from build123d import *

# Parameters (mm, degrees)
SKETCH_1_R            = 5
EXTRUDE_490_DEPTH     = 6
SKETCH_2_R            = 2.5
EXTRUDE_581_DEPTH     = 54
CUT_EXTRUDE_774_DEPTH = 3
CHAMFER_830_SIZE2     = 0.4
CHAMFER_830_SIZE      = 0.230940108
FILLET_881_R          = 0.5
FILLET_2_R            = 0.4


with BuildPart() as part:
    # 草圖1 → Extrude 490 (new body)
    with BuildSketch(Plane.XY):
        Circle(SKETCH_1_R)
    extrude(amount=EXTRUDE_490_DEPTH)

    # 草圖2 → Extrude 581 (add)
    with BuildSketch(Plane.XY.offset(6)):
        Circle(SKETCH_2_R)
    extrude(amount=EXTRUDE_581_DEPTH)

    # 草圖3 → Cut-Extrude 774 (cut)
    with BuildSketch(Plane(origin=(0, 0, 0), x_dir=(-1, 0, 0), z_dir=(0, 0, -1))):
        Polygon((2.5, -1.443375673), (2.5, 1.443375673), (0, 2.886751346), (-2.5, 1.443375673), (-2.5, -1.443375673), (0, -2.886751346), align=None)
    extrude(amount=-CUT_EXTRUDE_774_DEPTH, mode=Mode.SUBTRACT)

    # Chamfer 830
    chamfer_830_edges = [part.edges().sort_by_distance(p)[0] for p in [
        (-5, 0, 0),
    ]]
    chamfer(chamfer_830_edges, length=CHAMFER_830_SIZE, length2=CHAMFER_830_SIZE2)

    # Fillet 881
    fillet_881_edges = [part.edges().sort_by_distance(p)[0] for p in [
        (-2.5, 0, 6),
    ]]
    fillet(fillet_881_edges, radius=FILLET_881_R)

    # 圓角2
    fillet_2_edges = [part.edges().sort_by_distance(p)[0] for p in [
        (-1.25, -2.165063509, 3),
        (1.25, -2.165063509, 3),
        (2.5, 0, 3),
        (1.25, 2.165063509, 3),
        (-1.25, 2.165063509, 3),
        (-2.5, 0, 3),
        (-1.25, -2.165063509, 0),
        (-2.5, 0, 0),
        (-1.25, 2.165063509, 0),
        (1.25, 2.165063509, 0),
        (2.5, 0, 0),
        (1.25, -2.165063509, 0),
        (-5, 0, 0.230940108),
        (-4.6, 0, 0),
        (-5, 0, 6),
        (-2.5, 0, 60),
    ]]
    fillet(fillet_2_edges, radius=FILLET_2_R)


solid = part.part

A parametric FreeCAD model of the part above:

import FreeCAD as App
import Part
import Sketcher
Q = App.Units.Quantity


def edges_at(feature, points):
    """Names of the edges that pass closest to the given points."""
    edges = feature.Shape.Edges
    near = lambda p: min(range(len(edges)), key=lambda i: edges[i].distToShape(Part.Vertex(*p))[0])
    return sorted({f"Edge{near(p) + 1}" for p in points})


def add_polygon(sketch, points):
    """Adds a closed chain of lines whose ends are joined by coincident constraints."""
    first, n = sketch.GeometryCount, len(points)
    for a, b in zip(points, points[1:] + points[:1]):
        sketch.addGeometry(Part.LineSegment(App.Vector(*a, 0), App.Vector(*b, 0)), False)
    for i in range(n):
        sketch.addConstraint(Sketcher.Constraint("Coincident", first + i, 2, first + (i + 1) % n, 1))

doc = App.newDocument("Part")
body = doc.addObject("PartDesign::Body", "Body")

# Sketch on XY plane
sketch1 = doc.addObject("Sketcher::SketchObject", "Sketch")
body.addObject(sketch1)
sketch1.AttachmentSupport = (doc.XY_Plane, [""])
sketch1.MapMode = "FlatFace"
sketch1.addGeometry(Part.Circle(App.Vector(0, 0, 0), App.Vector(0, 0, 1), 5), False)
sketch1.addConstraint([
    Sketcher.Constraint("Coincident", 0, 3, -1, 1),
    Sketcher.Constraint("Diameter", 0, 10.0),
])
pad1 = doc.addObject("PartDesign::Pad", "Pad")
body.addObject(pad1)
pad1.Profile = sketch1
pad1.Length = 6

# Sketch on XY plane
sketch2 = doc.addObject("Sketcher::SketchObject", "Sketch001")
body.addObject(sketch2)
sketch2.AttachmentSupport = (doc.XY_Plane, [""])
sketch2.MapMode = "FlatFace"
sketch2.AttachmentOffset = App.Placement(App.Vector(0, 0, 6), App.Rotation())
sketch2.addGeometry(Part.Circle(App.Vector(0, 0, 0), App.Vector(0, 0, 1), 2.5), False)
sketch2.addConstraint([
    Sketcher.Constraint("Coincident", 0, 3, -1, 1),
    Sketcher.Constraint("Diameter", 0, 5.0),
])
pad2 = doc.addObject("PartDesign::Pad", "Pad001")
body.addObject(pad2)
pad2.Profile = sketch2
pad2.Length = 54

# Sketch on XY plane
sketch3 = doc.addObject("Sketcher::SketchObject", "Sketch002")
body.addObject(sketch3)
sketch3.AttachmentSupport = (doc.XY_Plane, [""])
sketch3.MapMode = "FlatFace"
add_polygon(sketch3, [(-2.5, -1.4), (-2.5, 1.4), (0, 2.9), (2.5, 1.4), (2.5, -1.4), (0, -2.9)])  # lines 0-5
sketch3.addConstraint([
    Sketcher.Constraint("Vertical", 0),
    Sketcher.Constraint("Vertical", 3),
    Sketcher.Constraint("Symmetric", 0, 2, 3, 2, -1, 1),
    Sketcher.Constraint("Symmetric", 1, 2, 4, 2, -1, 1),
    Sketcher.Constraint("PointOnObject", 1, 2, -2),
    Sketcher.Constraint("Parallel", 2, 5),
    Sketcher.Constraint("Horizontal", 0, 2, 2, 2),
    Sketcher.Constraint("Angle", 1, Q("30 deg")),
    Sketcher.Constraint("DistanceX", 0, 2, 2, 2, 5.0),
    Sketcher.Constraint("DistanceY", 0, 1, 0, 2, 2.886751),
])
pocket1 = doc.addObject("PartDesign::Pocket", "Pocket")
body.addObject(pocket1)
pocket1.Profile = sketch3
pocket1.Length = 3
pocket1.Reversed = True
doc.recompute()

chamfer = doc.addObject("PartDesign::Chamfer", "Chamfer")
body.addObject(chamfer)
chamfer.Base = (pocket1, edges_at(pocket1, [(-5, 0, 0)]))
chamfer.ChamferType = "Two distances"
chamfer.Size = 0.23094
chamfer.Size2 = 0.4
doc.recompute()

fillet = doc.addObject("PartDesign::Fillet", "Fillet")
body.addObject(fillet)
fillet.Base = (chamfer, edges_at(chamfer, [(-2.5, 0, 6)]))
fillet.Radius = 0.5
doc.recompute()

fillet2 = doc.addObject("PartDesign::Fillet", "Fillet001")
body.addObject(fillet2)
fillet2.Base = (fillet, edges_at(fillet, [
    (-1.25, -2.165, 3),
    (1.25, -2.165, 3),
    (2.5, 0, 3),
    (1.25, 2.165, 3),
    (-1.25, 2.165, 3),
    (-2.5, 0, 3),
    (-1.25, -2.165, 0),
    (-2.5, 0, 0),
    (-1.25, 2.165, 0),
    (1.25, 2.165, 0),
    (2.5, 0, 0),
    (1.25, -2.165, 0),
    (-5, 0, 0.231),
    (-4.6, 0, 0),
    (-5, 0, 6),
    (-2.5, 0, 60),
]))
fillet2.Radius = 0.4

doc.recompute()
